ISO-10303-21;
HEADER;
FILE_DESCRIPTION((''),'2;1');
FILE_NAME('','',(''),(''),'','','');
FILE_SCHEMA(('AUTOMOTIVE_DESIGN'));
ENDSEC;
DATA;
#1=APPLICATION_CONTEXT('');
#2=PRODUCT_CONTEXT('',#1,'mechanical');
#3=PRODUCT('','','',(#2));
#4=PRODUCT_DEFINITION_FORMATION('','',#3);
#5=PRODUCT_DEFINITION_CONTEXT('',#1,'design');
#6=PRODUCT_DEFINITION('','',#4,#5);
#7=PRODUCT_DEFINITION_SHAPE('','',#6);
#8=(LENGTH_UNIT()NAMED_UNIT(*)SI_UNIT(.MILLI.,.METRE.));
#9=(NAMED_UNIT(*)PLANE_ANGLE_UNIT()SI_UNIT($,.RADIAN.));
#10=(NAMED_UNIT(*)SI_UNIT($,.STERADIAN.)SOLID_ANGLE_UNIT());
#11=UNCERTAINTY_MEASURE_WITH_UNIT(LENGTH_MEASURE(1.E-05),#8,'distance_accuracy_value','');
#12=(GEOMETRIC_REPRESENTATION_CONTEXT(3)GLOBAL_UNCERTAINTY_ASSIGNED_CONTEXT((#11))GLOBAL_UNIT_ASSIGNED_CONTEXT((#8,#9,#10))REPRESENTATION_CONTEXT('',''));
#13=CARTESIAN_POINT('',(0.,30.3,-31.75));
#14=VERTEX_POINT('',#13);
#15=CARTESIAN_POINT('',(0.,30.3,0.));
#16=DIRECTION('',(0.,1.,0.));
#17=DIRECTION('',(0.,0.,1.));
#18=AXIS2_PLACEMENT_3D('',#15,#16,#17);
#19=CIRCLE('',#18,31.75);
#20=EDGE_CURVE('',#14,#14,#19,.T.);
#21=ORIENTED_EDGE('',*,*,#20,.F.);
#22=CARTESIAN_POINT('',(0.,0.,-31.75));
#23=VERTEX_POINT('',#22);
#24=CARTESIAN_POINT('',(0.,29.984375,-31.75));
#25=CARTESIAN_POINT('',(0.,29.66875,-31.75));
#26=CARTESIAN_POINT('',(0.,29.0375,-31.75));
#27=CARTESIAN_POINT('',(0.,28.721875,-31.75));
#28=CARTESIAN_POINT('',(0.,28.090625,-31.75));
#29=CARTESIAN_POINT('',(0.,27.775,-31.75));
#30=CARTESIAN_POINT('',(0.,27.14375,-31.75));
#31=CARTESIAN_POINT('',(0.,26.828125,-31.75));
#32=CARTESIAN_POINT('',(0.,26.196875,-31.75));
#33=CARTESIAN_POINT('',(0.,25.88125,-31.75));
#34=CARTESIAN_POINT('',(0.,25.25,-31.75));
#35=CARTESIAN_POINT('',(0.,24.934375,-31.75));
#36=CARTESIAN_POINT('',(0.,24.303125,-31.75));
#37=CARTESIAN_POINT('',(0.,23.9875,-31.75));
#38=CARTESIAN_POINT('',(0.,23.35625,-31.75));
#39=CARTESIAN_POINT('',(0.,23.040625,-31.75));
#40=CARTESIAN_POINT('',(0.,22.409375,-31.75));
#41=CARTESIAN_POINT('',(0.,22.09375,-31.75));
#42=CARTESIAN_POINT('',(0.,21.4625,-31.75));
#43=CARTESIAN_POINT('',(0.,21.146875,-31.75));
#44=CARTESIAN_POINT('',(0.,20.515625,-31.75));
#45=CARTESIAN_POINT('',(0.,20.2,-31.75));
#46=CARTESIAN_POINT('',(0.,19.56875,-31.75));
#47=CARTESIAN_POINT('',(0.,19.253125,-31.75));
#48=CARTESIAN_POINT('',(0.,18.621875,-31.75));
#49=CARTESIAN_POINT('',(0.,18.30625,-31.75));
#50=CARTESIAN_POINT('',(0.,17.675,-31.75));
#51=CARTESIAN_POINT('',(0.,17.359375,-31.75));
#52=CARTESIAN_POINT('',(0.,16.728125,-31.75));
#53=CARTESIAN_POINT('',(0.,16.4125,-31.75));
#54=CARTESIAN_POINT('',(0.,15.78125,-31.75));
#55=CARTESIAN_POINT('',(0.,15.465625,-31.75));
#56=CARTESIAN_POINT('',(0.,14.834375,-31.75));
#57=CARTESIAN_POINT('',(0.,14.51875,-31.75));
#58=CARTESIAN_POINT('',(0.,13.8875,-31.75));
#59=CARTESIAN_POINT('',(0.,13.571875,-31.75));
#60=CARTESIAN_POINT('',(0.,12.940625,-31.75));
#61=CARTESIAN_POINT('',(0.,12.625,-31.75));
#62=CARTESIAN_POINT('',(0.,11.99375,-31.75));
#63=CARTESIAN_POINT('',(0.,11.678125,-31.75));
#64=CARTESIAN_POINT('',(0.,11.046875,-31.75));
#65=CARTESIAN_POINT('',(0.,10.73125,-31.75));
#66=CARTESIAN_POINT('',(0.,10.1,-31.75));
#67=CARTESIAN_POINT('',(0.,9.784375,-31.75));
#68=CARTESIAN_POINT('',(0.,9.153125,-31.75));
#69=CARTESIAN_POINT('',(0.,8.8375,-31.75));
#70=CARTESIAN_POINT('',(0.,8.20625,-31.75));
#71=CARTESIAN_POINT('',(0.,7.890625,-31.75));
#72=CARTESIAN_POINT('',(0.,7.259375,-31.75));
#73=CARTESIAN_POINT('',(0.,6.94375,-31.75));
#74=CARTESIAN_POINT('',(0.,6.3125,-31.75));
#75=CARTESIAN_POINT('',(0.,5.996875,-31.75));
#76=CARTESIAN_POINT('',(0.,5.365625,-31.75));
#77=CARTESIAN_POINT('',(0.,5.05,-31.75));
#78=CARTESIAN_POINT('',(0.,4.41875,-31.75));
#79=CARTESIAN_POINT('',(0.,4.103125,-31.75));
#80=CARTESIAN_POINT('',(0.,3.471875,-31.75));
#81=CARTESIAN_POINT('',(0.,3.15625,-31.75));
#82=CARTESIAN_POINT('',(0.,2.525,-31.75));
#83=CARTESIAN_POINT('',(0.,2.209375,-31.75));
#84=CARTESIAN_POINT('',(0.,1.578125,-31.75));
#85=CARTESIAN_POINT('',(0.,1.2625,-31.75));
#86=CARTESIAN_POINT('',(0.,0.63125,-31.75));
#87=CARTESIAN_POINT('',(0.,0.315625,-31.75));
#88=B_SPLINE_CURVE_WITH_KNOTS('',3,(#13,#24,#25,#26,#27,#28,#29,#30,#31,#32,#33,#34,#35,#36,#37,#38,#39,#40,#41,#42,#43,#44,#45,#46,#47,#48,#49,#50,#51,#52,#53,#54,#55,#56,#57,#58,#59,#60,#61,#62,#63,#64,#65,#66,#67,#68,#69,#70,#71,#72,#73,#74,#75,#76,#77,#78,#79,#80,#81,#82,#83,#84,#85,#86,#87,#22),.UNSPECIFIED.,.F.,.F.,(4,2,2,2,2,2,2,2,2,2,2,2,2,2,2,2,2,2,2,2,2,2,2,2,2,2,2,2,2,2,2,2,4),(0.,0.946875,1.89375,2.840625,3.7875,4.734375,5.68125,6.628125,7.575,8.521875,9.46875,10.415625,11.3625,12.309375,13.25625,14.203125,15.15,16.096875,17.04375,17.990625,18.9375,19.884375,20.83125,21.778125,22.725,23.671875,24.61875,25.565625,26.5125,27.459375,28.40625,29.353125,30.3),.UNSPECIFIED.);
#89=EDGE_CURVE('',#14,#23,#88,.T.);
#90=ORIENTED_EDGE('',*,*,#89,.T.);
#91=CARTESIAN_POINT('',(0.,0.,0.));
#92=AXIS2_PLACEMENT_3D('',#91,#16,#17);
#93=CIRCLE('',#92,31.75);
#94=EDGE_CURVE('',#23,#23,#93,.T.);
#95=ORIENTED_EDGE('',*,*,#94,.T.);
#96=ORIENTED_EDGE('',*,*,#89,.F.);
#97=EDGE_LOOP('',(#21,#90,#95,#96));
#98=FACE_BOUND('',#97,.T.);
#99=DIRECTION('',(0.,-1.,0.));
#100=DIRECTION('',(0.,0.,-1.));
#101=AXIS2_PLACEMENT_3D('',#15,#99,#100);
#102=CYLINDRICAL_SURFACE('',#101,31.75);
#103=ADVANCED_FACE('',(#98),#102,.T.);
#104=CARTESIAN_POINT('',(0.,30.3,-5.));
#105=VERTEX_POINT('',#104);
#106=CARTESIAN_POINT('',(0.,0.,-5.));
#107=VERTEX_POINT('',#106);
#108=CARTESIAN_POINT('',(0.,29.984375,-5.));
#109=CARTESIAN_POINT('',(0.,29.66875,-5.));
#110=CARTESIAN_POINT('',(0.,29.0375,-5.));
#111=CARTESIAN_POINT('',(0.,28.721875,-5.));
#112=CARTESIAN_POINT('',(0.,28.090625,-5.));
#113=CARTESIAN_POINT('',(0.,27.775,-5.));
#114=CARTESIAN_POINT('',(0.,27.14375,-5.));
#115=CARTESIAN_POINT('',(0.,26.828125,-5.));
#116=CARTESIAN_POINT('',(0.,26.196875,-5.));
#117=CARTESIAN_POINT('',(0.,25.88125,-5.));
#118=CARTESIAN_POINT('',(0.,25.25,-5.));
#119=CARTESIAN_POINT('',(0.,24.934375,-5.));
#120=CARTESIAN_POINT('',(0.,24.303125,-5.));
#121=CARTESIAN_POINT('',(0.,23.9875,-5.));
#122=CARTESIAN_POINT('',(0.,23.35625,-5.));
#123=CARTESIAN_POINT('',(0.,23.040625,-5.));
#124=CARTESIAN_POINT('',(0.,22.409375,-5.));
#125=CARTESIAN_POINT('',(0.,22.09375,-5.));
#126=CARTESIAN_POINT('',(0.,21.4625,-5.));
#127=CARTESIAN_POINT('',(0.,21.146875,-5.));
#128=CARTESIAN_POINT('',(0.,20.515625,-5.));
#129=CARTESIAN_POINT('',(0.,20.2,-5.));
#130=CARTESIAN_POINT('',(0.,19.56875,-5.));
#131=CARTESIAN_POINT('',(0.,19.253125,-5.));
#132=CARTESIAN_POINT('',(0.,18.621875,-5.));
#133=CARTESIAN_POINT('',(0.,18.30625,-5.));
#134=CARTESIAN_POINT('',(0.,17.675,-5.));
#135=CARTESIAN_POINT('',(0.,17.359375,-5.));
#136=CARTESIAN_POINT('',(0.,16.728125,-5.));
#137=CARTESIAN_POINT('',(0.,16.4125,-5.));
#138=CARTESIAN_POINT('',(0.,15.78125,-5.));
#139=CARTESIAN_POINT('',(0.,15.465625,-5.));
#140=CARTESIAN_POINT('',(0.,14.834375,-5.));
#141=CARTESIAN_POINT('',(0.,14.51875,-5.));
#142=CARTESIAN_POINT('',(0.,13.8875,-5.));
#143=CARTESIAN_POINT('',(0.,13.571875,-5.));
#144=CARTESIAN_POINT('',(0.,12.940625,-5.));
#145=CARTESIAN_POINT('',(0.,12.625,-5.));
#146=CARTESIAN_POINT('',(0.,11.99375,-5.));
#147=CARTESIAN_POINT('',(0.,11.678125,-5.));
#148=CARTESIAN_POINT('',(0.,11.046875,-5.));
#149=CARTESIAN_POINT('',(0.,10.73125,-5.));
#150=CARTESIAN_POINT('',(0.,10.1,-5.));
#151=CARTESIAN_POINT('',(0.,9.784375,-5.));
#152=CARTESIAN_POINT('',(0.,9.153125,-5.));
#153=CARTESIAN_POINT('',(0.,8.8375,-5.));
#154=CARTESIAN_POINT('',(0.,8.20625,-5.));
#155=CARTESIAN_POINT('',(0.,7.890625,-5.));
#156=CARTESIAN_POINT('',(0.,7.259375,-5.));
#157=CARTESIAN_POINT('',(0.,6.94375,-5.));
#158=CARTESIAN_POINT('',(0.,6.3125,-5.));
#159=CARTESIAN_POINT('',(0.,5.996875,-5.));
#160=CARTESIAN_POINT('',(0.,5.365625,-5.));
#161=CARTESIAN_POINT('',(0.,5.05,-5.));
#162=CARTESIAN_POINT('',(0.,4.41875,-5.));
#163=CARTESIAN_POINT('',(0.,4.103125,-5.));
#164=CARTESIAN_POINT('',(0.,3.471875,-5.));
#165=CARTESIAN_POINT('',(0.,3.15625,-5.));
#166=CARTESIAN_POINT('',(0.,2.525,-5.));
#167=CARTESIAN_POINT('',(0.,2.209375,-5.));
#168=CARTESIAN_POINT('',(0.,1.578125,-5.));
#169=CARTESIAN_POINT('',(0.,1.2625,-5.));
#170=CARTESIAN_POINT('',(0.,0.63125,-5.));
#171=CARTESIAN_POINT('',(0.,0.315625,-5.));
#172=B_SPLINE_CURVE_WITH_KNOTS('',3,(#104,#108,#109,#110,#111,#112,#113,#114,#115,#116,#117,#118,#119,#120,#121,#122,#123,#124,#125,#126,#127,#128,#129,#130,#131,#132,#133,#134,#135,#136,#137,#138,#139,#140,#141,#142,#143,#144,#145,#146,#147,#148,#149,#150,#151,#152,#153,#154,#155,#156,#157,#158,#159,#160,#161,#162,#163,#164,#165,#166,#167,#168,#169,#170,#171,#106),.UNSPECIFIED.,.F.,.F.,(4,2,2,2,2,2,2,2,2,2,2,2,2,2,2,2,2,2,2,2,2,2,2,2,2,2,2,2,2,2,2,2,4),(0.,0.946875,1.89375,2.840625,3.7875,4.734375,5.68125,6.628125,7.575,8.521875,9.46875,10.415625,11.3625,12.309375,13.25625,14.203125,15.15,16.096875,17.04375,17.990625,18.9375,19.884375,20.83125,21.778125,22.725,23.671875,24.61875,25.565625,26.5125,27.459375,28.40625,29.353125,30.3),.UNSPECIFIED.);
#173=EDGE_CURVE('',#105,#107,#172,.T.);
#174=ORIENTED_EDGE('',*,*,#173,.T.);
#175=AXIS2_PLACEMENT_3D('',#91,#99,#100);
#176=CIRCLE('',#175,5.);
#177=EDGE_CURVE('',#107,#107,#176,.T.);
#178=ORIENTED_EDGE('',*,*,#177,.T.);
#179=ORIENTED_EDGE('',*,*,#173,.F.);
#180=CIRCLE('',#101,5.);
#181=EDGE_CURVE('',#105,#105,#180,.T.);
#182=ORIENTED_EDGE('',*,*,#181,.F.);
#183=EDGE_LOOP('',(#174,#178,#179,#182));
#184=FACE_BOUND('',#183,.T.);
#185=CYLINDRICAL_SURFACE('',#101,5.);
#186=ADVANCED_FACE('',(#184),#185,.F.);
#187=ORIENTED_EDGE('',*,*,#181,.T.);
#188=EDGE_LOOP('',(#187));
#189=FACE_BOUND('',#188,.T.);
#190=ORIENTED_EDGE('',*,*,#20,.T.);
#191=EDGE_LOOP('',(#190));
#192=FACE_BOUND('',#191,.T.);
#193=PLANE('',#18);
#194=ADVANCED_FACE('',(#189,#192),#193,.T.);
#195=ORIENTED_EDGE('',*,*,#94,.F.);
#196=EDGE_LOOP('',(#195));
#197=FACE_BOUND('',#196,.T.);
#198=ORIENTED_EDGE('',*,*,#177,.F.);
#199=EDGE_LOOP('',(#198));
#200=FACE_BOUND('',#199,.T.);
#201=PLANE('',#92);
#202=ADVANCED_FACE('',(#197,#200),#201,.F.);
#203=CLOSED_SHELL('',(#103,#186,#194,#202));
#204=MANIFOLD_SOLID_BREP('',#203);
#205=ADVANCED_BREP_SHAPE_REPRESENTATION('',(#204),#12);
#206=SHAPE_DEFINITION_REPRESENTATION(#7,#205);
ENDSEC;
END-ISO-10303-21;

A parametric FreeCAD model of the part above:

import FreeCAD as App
import Part
import Sketcher

V = App.Vector
Q = App.Units.Quantity

doc = App.newDocument("Part")
body = doc.addObject("PartDesign::Body", "Body")

# Sketch on XZ plane
sketch1 = body.newObject("Sketcher::SketchObject", "Sketch")
sketch1.AttachmentSupport = (doc.getObject("XZ_Plane"), [""])
sketch1.MapMode = "FlatFace"
sketch1.addGeometry(Part.Circle(V(0, 0, 0), V(0, 0, 1), 32), False)
sketch1.addConstraint(Sketcher.Constraint("Coincident", 0, 3, -1, 1))
sketch1.addConstraint(Sketcher.Constraint("Diameter", 0, Q("63.5 mm")))
pad1 = body.newObject("PartDesign::Pad", "Pad")
pad1.Profile = sketch1
pad1.Length = 30.3
pad1.Reversed = True

# Sketch on XZ plane
sketch2 = body.newObject("Sketcher::SketchObject", "Sketch001")
sketch2.AttachmentSupport = (doc.getObject("XZ_Plane"), [""])
sketch2.MapMode = "FlatFace"
sketch2.addGeometry(Part.Circle(V(0, 0, 0), V(0, 0, 1), 5), False)
sketch2.addConstraint(Sketcher.Constraint("Coincident", 0, 3, -1, 1))
sketch2.addConstraint(Sketcher.Constraint("Diameter", 0, Q("10 mm")))
pocket1 = body.newObject("PartDesign::Pocket", "Pocket")
pocket1.Profile = sketch2
pocket1.Type = "ThroughAll"

doc.recompute()
